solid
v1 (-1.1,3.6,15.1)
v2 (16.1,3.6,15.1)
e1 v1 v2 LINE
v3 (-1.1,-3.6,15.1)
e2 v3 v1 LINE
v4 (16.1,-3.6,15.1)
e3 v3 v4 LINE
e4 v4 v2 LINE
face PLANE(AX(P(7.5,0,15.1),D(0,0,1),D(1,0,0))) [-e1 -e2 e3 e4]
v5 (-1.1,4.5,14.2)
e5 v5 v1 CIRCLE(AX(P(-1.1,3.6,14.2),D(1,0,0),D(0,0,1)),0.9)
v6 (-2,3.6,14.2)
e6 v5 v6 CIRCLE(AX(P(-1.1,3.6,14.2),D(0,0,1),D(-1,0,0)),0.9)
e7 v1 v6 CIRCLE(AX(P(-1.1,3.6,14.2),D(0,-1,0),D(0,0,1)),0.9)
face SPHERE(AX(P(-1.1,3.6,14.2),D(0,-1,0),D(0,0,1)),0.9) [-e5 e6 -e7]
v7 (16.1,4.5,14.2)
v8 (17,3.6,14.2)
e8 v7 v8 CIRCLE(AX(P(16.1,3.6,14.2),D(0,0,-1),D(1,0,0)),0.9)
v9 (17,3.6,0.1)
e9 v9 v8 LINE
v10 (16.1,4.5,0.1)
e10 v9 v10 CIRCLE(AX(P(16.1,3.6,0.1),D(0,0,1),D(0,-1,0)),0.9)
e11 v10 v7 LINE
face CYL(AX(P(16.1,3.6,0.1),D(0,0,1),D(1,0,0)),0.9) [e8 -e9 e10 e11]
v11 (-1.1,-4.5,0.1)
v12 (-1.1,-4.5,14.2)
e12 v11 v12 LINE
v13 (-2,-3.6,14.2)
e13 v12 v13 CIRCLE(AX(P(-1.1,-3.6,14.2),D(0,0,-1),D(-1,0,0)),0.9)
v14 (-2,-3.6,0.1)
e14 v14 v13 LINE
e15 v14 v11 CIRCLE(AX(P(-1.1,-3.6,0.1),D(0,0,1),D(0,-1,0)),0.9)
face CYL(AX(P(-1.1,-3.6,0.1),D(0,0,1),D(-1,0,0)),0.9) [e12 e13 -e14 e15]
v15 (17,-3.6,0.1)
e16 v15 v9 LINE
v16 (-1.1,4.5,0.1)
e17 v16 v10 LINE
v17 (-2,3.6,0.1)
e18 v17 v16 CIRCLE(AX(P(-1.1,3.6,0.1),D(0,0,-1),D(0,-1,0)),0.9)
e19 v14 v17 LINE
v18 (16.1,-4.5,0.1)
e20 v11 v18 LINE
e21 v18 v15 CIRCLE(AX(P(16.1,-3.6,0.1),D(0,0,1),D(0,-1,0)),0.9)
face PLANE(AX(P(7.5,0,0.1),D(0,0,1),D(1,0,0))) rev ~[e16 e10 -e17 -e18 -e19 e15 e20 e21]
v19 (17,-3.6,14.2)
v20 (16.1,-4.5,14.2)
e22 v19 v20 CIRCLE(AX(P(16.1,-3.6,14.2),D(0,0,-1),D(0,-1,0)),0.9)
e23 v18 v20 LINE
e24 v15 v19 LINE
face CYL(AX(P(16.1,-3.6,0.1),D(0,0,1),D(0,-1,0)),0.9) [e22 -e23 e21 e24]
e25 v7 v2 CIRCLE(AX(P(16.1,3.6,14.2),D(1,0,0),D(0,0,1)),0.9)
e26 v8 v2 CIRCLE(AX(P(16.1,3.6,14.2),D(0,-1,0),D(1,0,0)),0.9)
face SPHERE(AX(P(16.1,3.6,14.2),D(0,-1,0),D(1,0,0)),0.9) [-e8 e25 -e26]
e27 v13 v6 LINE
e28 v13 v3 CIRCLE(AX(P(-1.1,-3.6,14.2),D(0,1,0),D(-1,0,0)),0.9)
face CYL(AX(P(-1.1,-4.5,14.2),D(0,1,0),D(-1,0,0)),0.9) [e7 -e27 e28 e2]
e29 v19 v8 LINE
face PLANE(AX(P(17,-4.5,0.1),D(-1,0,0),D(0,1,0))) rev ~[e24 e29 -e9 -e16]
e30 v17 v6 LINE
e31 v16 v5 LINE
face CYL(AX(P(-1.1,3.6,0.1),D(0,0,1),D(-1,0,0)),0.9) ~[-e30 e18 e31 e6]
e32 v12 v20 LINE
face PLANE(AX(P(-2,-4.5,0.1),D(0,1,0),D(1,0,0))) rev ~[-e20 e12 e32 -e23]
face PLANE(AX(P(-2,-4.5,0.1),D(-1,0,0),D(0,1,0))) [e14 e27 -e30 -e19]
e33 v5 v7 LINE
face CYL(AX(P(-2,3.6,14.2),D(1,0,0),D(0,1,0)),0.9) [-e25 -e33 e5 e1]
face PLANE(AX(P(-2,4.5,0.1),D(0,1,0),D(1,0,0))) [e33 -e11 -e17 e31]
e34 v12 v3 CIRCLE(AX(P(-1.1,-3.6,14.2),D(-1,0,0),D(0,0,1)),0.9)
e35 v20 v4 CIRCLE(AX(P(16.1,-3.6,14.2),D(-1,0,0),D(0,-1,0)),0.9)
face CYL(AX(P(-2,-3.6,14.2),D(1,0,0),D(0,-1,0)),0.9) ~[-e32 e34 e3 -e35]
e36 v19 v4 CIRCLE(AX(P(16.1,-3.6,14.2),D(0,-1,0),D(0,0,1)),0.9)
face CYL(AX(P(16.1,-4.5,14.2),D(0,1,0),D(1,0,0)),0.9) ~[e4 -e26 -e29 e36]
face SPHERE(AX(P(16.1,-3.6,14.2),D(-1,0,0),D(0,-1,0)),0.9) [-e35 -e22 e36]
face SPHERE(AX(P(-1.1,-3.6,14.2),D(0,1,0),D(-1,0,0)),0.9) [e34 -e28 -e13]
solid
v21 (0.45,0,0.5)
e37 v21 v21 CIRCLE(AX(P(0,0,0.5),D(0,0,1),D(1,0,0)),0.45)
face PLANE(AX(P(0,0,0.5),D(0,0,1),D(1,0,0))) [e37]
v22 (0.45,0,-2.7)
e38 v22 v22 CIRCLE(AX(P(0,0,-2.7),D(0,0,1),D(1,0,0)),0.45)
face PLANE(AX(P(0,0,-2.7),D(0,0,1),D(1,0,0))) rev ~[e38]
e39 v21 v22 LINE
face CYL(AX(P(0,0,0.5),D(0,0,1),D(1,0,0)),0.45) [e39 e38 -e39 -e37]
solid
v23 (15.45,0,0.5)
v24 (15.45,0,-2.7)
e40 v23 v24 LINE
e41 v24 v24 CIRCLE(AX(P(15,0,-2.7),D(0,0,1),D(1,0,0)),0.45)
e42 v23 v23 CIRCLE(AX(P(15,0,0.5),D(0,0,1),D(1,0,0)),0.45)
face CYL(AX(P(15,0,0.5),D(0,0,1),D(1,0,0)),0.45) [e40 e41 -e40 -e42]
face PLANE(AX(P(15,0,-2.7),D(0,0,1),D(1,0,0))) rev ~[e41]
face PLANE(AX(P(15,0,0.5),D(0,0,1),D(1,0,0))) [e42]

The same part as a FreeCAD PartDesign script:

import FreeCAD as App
import Part
import Sketcher


def edges_at(feature, points):
    """Names of the edges that pass closest to the given points."""
    edges = feature.Shape.Edges
    near = lambda p: min(range(len(edges)), key=lambda i: edges[i].distToShape(Part.Vertex(*p))[0])
    return sorted({f"Edge{near(p) + 1}" for p in points})

doc = App.newDocument("Part")
body = doc.addObject("PartDesign::Body", "Body")

sketch1 = doc.addObject("Sketcher::SketchObject", "Sketch")
body.addObject(sketch1)
sketch1.AttachmentSupport = (doc.XY_Plane, [""])
sketch1.MapMode = "FlatFace"
sketch1.AttachmentOffset = App.Placement(App.Vector(0, 0, 0.1), App.Rotation())
sketch1.addGeometry([
    Part.LineSegment(App.Vector(-2, 4, 0), App.Vector(-2, -4, 0)),
    Part.LineSegment(App.Vector(-2, -4, 0), App.Vector(17, -4, 0)),
    Part.LineSegment(App.Vector(17, -4, 0), App.Vector(17, 4, 0)),
    Part.LineSegment(App.Vector(17, 4, 0), App.Vector(-2, 4, 0)),
], False)
sketch1.addConstraint([
    Sketcher.Constraint("Coincident", 0, 2, 1, 1),
    Sketcher.Constraint("Coincident", 1, 2, 2, 1),
    Sketcher.Constraint("Coincident", 2, 2, 3, 1),
    Sketcher.Constraint("Coincident", 3, 2, 0, 1),
    Sketcher.Constraint("Vertical", 0),
    Sketcher.Constraint("Horizontal", 1),
    Sketcher.Constraint("Vertical", 2),
    Sketcher.Constraint("Horizontal", 3),
    Sketcher.Constraint("DistanceX", 1, 1, 1, 2, 19.0),
    Sketcher.Constraint("DistanceY", 0, 2, 0, 1, 9.0),
    Sketcher.Constraint("DistanceX", 0, 2, -1, 1, 2.0),
    Sketcher.Constraint("DistanceY", 0, 2, -1, 1, 4.5),
])
pad1 = doc.addObject("PartDesign::Pad", "Pad")
body.addObject(pad1)
pad1.Profile = sketch1
pad1.Length = 15
doc.recompute()

fillet = doc.addObject("PartDesign::Fillet", "Fillet")
body.addObject(fillet)
fillet.Base = (pad1, edges_at(pad1, [
    (-2, 0, 15.1),
    (-2, -4.5, 7.6),
    (7.5, -4.5, 15.1),
    (17, -4.5, 7.6),
    (17, 0, 15.1),
    (17, 4.5, 7.6),
    (7.5, 4.5, 15.1),
    (-2, 4.5, 7.6),
]))
fillet.Radius = 0.9
body2 = doc.addObject("PartDesign::Body", "Body001")
body2.AllowCompound = True

sketch2 = doc.addObject("Sketcher::SketchObject", "Sketch001")
body2.addObject(sketch2)
sketch2.AttachmentSupport = (doc.getObject("XY_Plane001"), [""])
sketch2.MapMode = "FlatFace"
sketch2.AttachmentOffset = App.Placement(App.Vector(0, 0, 0.5), App.Rotation())
sketch2.addGeometry([
    Part.Circle(App.Vector(0, 0, 0), App.Vector(0, 0, 1), 0.45),
    Part.Circle(App.Vector(15, 0, 0), App.Vector(0, 0, 1), 0.45),
], False)
sketch2.addConstraint([
    Sketcher.Constraint("Coincident", 0, 3, -1, 1),
    Sketcher.Constraint("Equal", 0, 1),
    Sketcher.Constraint("PointOnObject", 1, 3, -1),
    Sketcher.Constraint("Diameter", 0, 0.9),
    Sketcher.Constraint("DistanceX", -1, 1, 1, 3, 15.0),
])
pad2 = doc.addObject("PartDesign::Pad", "Pad001")
body2.addObject(pad2)
pad2.Profile = sketch2
pad2.Length = 3.2
pad2.Reversed = True

doc.recompute()
